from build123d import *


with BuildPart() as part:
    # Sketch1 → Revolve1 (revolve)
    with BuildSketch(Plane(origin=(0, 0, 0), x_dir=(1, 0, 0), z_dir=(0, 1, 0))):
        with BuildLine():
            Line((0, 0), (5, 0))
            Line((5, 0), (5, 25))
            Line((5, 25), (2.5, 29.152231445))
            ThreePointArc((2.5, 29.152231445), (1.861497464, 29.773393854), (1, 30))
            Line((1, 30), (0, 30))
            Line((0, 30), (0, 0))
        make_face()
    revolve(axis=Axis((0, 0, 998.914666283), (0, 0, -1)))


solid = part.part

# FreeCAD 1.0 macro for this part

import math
import FreeCAD as App
import Part
import Sketcher
Q = App.Units.Quantity

doc = App.newDocument("Part")
body = doc.addObject("PartDesign::Body", "Body")

sketch1 = body.newObject("Sketcher::SketchObject", "Sketch")
sketch1.AttachmentSupport = (doc.getObject("XZ_Plane"), [""])
sketch1.MapMode = "FlatFace"
sketch1.addGeometry([
    Part.LineSegment(App.Vector(0, 0, 0), App.Vector(5, 0, 0)),
    Part.LineSegment(App.Vector(5, 0, 0), App.Vector(5, -25, 0)),
    Part.LineSegment(App.Vector(5, -25, 0), App.Vector(2.5, -29.2, 0)),
    Part.ArcOfCircle(Part.Circle(App.Vector(1, -28.2, 0), App.Vector(0, 0, 1), 1.8), math.radians(-90), math.radians(-31)),
    Part.LineSegment(App.Vector(1, -30, 0), App.Vector(0, -30, 0)),
    Part.LineSegment(App.Vector(0, -30, 0), App.Vector(0, 0, 0)),
], False)
sketch1.addConstraint([
    Sketcher.Constraint("Coincident", 0, 2, 1, 1),
    Sketcher.Constraint("Coincident", 1, 2, 2, 1),
    Sketcher.Constraint("Tangent", 2, 2, 3, 2),
    Sketcher.Constraint("Tangent", 3, 1, 4, 1),
    Sketcher.Constraint("Coincident", 4, 2, 5, 1),
    Sketcher.Constraint("Coincident", 5, 2, 0, 1),
    Sketcher.Constraint("Horizontal", 0),
    Sketcher.Constraint("Vertical", 1),
    Sketcher.Constraint("Horizontal", 4),
    Sketcher.Constraint("Vertical", 5),
    Sketcher.Constraint("Coincident", 5, 2, -1, 1),
    Sketcher.Constraint("DistanceX", 0, 1, 0, 2, Q("5 mm")),
    Sketcher.Constraint("DistanceX", 4, 2, 4, 1, Q("1 mm")),
    Sketcher.Constraint("DistanceY", 1, 2, 1, 1, Q("25 mm")),
    Sketcher.Constraint("DistanceY", 5, 1, 5, 2, Q("30 mm")),
    Sketcher.Constraint("DistanceX", -1, 1, 2, 2, Q("2.5 mm")),
])
revolution = body.newObject("PartDesign::Revolution", "Revolution")
revolution.Profile = sketch1
revolution.ReferenceAxis = (sketch1, ["V_Axis"])
revolution.Angle = 360

doc.recompute()
